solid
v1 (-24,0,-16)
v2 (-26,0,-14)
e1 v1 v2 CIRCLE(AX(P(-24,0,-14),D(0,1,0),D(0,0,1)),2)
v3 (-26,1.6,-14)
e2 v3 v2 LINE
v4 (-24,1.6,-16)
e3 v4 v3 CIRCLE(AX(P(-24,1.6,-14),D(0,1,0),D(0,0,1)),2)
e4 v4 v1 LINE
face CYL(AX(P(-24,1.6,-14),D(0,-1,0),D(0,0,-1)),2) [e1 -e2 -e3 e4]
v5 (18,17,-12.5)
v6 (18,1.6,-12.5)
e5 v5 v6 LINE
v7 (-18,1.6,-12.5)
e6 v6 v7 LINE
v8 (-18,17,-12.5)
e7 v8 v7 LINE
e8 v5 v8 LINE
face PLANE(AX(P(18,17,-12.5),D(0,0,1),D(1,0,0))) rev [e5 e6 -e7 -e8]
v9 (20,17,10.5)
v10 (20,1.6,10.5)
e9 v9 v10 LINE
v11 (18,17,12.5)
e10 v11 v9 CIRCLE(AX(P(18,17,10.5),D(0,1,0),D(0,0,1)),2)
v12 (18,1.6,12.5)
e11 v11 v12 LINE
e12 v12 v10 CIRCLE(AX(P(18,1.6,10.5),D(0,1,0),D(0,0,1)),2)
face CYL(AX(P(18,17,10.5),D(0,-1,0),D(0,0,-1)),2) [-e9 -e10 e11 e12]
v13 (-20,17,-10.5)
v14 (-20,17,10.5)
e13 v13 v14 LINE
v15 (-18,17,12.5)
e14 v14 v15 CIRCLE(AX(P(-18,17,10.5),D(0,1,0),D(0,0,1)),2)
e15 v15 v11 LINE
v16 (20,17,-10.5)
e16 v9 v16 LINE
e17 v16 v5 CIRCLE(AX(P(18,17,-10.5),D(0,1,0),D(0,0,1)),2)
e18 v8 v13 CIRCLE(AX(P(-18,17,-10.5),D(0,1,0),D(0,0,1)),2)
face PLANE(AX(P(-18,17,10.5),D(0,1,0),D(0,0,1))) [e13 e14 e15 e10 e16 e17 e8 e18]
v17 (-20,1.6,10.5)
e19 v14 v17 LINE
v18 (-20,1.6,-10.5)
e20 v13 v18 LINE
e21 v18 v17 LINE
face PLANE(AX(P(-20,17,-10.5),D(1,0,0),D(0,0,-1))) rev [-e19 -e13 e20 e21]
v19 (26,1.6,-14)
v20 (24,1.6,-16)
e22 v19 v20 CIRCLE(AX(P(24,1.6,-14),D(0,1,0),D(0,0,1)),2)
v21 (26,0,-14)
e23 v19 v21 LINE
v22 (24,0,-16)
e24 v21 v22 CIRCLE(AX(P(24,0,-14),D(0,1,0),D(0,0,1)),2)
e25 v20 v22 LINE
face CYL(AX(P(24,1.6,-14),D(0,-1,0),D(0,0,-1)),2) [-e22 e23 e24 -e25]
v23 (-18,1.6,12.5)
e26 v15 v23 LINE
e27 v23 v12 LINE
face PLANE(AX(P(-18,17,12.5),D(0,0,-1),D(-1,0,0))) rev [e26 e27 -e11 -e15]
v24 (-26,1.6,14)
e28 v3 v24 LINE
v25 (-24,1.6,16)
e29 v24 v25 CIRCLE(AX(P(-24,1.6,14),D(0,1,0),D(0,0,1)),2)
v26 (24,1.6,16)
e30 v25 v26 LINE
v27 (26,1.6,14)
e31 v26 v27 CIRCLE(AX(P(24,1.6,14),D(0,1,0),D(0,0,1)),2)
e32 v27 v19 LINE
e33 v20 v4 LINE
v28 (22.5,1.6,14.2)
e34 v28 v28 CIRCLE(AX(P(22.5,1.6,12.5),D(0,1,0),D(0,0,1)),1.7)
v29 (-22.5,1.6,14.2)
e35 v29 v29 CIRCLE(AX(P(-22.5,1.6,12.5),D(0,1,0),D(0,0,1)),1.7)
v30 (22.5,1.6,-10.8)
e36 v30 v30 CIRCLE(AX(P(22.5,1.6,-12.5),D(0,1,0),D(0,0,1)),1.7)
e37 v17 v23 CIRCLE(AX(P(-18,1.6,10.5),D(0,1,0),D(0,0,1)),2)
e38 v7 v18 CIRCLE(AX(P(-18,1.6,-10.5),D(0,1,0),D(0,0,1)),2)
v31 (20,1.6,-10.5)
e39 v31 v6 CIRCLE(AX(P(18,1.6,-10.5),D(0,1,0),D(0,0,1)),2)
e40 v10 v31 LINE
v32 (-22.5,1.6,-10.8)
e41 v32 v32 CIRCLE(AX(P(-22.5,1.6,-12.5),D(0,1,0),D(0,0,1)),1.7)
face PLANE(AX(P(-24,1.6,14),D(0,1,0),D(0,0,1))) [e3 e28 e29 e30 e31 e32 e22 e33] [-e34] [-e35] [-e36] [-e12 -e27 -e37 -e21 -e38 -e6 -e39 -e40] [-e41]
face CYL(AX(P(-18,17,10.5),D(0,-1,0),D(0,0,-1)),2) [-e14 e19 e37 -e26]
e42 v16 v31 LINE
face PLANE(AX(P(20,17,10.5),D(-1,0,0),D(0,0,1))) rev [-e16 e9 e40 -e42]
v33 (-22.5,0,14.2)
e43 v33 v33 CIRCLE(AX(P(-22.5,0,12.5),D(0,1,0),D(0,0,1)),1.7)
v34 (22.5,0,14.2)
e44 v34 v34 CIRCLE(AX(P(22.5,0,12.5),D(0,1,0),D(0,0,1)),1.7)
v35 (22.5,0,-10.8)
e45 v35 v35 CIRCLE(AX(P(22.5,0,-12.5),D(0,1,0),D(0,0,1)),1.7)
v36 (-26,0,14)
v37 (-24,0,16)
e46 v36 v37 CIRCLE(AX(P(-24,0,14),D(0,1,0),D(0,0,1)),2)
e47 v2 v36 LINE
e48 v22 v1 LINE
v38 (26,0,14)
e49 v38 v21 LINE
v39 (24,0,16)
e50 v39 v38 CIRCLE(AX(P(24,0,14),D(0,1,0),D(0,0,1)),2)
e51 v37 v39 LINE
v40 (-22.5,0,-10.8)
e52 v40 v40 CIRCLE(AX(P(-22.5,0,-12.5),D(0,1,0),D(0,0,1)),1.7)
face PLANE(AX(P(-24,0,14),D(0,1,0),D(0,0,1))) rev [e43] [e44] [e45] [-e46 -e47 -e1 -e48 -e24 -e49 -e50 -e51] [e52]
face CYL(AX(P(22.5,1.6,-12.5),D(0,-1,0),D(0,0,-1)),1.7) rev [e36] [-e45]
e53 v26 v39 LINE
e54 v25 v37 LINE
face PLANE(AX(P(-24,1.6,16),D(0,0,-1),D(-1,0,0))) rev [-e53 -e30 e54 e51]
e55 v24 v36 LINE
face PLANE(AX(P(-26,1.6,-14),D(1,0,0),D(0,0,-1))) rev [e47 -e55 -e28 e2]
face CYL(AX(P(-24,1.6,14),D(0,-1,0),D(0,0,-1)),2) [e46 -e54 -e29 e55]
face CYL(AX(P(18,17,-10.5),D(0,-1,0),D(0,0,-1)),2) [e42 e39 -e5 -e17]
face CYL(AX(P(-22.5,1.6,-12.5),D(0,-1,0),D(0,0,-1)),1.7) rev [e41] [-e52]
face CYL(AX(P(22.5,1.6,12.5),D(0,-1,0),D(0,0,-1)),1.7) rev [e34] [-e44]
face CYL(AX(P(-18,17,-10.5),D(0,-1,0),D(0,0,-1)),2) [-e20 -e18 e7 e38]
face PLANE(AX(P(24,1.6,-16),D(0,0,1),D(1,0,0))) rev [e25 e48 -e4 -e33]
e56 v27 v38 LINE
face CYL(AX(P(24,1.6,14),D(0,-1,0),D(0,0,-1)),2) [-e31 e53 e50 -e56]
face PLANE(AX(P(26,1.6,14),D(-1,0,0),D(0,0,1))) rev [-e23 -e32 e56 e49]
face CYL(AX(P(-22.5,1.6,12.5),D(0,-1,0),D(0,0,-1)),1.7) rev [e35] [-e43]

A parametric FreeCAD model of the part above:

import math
import FreeCAD as App
import Part
import Sketcher
from FreeCAD import Vector

doc = App.newDocument("Part")
body = doc.addObject("PartDesign::Body", "Body")

sketch1 = body.newObject("Sketcher::SketchObject", "Sketch")
sketch1.AttachmentSupport = (doc.getObject("XZ_Plane"), [""])
sketch1.MapMode = "FlatFace"
sketch1.addGeometry([
    Part.LineSegment(Vector(-24, 16, 0), Vector(24, 16, 0)),
    Part.ArcOfCircle(Part.Circle(Vector(24, 14, 0), Vector(0, 0, 1), 2), math.radians(0), math.radians(90)),
    Part.LineSegment(Vector(26, 14, 0), Vector(26, -14, 0)),
    Part.ArcOfCircle(Part.Circle(Vector(24, -14, 0), Vector(0, 0, 1), 2), math.radians(-90), math.radians(0)),
    Part.LineSegment(Vector(24, -16, 0), Vector(-24, -16, 0)),
    Part.ArcOfCircle(Part.Circle(Vector(-24, -14, 0), Vector(0, 0, 1), 2), math.radians(-180), math.radians(-90)),
    Part.LineSegment(Vector(-26, -14, 0), Vector(-26, 14, 0)),
    Part.ArcOfCircle(Part.Circle(Vector(-24, 14, 0), Vector(0, 0, 1), 2), math.radians(90), math.radians(180)),
], False)
sketch1.addConstraint([
    Sketcher.Constraint("Tangent", 0, 2, 1, 2),
    Sketcher.Constraint("Tangent", 1, 1, 2, 1),
    Sketcher.Constraint("Tangent", 2, 2, 3, 2),
    Sketcher.Constraint("Tangent", 3, 1, 4, 1),
    Sketcher.Constraint("Tangent", 4, 2, 5, 2),
    Sketcher.Constraint("Tangent", 5, 1, 6, 1),
    Sketcher.Constraint("Tangent", 6, 2, 7, 2),
    Sketcher.Constraint("Tangent", 7, 1, 0, 1),
    Sketcher.Constraint("Horizontal", 0),
    Sketcher.Constraint("Vertical", 2),
    Sketcher.Constraint("Horizontal", 4),
    Sketcher.Constraint("Vertical", 6),
    Sketcher.Constraint("Equal", 1, 3),
    Sketcher.Constraint("Equal", 3, 5),
    Sketcher.Constraint("Equal", 5, 7),
    Sketcher.Constraint("Symmetric", 1, 3, 5, 3, -1, 1),
    Sketcher.Constraint("Radius", 1, 2.0),
    Sketcher.Constraint("DistanceX", 0, 1, 0, 2, 48.0),
    Sketcher.Constraint("DistanceY", 2, 2, 2, 1, 28.0),
])
pad1 = body.newObject("PartDesign::Pad", "Pad")
pad1.Profile = sketch1
pad1.Length = 1.6
pad1.Reversed = True

sketch2 = body.newObject("Sketcher::SketchObject", "Sketch001")
sketch2.AttachmentSupport = (doc.getObject("XZ_Plane"), [""])
sketch2.MapMode = "FlatFace"
sketch2.AttachmentOffset = App.Placement(Vector(0, 0, -1.6), App.Rotation())
sketch2.addGeometry([
    Part.LineSegment(Vector(-18, 12.5, 0), Vector(18, 12.5, 0)),
    Part.ArcOfCircle(Part.Circle(Vector(18, 10.5, 0), Vector(0, 0, 1), 2), math.radians(0), math.radians(90)),
    Part.LineSegment(Vector(20, 10.5, 0), Vector(20, -10.5, 0)),
    Part.ArcOfCircle(Part.Circle(Vector(18, -10.5, 0), Vector(0, 0, 1), 2), math.radians(-90), math.radians(0)),
    Part.LineSegment(Vector(18, -12.5, 0), Vector(-18, -12.5, 0)),
    Part.ArcOfCircle(Part.Circle(Vector(-18, -10.5, 0), Vector(0, 0, 1), 2), math.radians(-180), math.radians(-90)),
    Part.LineSegment(Vector(-20, -10.5, 0), Vector(-20, 10.5, 0)),
    Part.ArcOfCircle(Part.Circle(Vector(-18, 10.5, 0), Vector(0, 0, 1), 2), math.radians(90), math.radians(180)),
], False)
sketch2.addConstraint([
    Sketcher.Constraint("Tangent", 0, 2, 1, 2),
    Sketcher.Constraint("Tangent", 1, 1, 2, 1),
    Sketcher.Constraint("Tangent", 2, 2, 3, 2),
    Sketcher.Constraint("Tangent", 3, 1, 4, 1),
    Sketcher.Constraint("Tangent", 4, 2, 5, 2),
    Sketcher.Constraint("Tangent", 5, 1, 6, 1),
    Sketcher.Constraint("Tangent", 6, 2, 7, 2),
    Sketcher.Constraint("Tangent", 7, 1, 0, 1),
    Sketcher.Constraint("Horizontal", 0),
    Sketcher.Constraint("Vertical", 2),
    Sketcher.Constraint("Horizontal", 4),
    Sketcher.Constraint("Vertical", 6),
    Sketcher.Constraint("Equal", 1, 3),
    Sketcher.Constraint("Equal", 3, 5),
    Sketcher.Constraint("Equal", 5, 7),
    Sketcher.Constraint("Symmetric", 1, 3, 5, 3, -1, 1),
    Sketcher.Constraint("Radius", 1, 2.0),
    Sketcher.Constraint("DistanceX", 0, 1, 0, 2, 36.0),
    Sketcher.Constraint("DistanceY", 2, 2, 2, 1, 21.0),
])
pad2 = body.newObject("PartDesign::Pad", "Pad001")
pad2.Profile = sketch2
pad2.Length = 15.4
pad2.Reversed = True

sketch3 = body.newObject("Sketcher::SketchObject", "Sketch002")
sketch3.AttachmentSupport = (doc.getObject("XZ_Plane"), [""])
sketch3.MapMode = "FlatFace"
sketch3.addGeometry([
    Part.Circle(Vector(22.5, 12.5, 0), Vector(0, 0, 1), 1.7),
    Part.Circle(Vector(22.5, -12.5, 0), Vector(0, 0, 1), 1.7),
    Part.Circle(Vector(-22.5, 12.5, 0), Vector(0, 0, 1), 1.7),
    Part.Circle(Vector(-22.5, -12.5, 0), Vector(0, 0, 1), 1.7),
], False)
sketch3.addConstraint([
    Sketcher.Constraint("Equal", 0, 1),
    Sketcher.Constraint("Equal", 1, 2),
    Sketcher.Constraint("Equal", 2, 3),
    Sketcher.Constraint("Symmetric", 1, 3, 2, 3, -1, 1),
    Sketcher.Constraint("Symmetric", 0, 3, 3, 3, -1, 1),
    Sketcher.Constraint("Symmetric", 0, 3, 2, 3, -2),
    Sketcher.Constraint("Diameter", 0, 3.4),
    Sketcher.Constraint("DistanceY", 1, 3, 0, 3, 25.0),
    Sketcher.Constraint("DistanceX", 2, 3, 0, 3, 45.0),
])
pocket1 = body.newObject("PartDesign::Pocket", "Pocket")
pocket1.Profile = sketch3
pocket1.Length = 1.6

doc.recompute()
